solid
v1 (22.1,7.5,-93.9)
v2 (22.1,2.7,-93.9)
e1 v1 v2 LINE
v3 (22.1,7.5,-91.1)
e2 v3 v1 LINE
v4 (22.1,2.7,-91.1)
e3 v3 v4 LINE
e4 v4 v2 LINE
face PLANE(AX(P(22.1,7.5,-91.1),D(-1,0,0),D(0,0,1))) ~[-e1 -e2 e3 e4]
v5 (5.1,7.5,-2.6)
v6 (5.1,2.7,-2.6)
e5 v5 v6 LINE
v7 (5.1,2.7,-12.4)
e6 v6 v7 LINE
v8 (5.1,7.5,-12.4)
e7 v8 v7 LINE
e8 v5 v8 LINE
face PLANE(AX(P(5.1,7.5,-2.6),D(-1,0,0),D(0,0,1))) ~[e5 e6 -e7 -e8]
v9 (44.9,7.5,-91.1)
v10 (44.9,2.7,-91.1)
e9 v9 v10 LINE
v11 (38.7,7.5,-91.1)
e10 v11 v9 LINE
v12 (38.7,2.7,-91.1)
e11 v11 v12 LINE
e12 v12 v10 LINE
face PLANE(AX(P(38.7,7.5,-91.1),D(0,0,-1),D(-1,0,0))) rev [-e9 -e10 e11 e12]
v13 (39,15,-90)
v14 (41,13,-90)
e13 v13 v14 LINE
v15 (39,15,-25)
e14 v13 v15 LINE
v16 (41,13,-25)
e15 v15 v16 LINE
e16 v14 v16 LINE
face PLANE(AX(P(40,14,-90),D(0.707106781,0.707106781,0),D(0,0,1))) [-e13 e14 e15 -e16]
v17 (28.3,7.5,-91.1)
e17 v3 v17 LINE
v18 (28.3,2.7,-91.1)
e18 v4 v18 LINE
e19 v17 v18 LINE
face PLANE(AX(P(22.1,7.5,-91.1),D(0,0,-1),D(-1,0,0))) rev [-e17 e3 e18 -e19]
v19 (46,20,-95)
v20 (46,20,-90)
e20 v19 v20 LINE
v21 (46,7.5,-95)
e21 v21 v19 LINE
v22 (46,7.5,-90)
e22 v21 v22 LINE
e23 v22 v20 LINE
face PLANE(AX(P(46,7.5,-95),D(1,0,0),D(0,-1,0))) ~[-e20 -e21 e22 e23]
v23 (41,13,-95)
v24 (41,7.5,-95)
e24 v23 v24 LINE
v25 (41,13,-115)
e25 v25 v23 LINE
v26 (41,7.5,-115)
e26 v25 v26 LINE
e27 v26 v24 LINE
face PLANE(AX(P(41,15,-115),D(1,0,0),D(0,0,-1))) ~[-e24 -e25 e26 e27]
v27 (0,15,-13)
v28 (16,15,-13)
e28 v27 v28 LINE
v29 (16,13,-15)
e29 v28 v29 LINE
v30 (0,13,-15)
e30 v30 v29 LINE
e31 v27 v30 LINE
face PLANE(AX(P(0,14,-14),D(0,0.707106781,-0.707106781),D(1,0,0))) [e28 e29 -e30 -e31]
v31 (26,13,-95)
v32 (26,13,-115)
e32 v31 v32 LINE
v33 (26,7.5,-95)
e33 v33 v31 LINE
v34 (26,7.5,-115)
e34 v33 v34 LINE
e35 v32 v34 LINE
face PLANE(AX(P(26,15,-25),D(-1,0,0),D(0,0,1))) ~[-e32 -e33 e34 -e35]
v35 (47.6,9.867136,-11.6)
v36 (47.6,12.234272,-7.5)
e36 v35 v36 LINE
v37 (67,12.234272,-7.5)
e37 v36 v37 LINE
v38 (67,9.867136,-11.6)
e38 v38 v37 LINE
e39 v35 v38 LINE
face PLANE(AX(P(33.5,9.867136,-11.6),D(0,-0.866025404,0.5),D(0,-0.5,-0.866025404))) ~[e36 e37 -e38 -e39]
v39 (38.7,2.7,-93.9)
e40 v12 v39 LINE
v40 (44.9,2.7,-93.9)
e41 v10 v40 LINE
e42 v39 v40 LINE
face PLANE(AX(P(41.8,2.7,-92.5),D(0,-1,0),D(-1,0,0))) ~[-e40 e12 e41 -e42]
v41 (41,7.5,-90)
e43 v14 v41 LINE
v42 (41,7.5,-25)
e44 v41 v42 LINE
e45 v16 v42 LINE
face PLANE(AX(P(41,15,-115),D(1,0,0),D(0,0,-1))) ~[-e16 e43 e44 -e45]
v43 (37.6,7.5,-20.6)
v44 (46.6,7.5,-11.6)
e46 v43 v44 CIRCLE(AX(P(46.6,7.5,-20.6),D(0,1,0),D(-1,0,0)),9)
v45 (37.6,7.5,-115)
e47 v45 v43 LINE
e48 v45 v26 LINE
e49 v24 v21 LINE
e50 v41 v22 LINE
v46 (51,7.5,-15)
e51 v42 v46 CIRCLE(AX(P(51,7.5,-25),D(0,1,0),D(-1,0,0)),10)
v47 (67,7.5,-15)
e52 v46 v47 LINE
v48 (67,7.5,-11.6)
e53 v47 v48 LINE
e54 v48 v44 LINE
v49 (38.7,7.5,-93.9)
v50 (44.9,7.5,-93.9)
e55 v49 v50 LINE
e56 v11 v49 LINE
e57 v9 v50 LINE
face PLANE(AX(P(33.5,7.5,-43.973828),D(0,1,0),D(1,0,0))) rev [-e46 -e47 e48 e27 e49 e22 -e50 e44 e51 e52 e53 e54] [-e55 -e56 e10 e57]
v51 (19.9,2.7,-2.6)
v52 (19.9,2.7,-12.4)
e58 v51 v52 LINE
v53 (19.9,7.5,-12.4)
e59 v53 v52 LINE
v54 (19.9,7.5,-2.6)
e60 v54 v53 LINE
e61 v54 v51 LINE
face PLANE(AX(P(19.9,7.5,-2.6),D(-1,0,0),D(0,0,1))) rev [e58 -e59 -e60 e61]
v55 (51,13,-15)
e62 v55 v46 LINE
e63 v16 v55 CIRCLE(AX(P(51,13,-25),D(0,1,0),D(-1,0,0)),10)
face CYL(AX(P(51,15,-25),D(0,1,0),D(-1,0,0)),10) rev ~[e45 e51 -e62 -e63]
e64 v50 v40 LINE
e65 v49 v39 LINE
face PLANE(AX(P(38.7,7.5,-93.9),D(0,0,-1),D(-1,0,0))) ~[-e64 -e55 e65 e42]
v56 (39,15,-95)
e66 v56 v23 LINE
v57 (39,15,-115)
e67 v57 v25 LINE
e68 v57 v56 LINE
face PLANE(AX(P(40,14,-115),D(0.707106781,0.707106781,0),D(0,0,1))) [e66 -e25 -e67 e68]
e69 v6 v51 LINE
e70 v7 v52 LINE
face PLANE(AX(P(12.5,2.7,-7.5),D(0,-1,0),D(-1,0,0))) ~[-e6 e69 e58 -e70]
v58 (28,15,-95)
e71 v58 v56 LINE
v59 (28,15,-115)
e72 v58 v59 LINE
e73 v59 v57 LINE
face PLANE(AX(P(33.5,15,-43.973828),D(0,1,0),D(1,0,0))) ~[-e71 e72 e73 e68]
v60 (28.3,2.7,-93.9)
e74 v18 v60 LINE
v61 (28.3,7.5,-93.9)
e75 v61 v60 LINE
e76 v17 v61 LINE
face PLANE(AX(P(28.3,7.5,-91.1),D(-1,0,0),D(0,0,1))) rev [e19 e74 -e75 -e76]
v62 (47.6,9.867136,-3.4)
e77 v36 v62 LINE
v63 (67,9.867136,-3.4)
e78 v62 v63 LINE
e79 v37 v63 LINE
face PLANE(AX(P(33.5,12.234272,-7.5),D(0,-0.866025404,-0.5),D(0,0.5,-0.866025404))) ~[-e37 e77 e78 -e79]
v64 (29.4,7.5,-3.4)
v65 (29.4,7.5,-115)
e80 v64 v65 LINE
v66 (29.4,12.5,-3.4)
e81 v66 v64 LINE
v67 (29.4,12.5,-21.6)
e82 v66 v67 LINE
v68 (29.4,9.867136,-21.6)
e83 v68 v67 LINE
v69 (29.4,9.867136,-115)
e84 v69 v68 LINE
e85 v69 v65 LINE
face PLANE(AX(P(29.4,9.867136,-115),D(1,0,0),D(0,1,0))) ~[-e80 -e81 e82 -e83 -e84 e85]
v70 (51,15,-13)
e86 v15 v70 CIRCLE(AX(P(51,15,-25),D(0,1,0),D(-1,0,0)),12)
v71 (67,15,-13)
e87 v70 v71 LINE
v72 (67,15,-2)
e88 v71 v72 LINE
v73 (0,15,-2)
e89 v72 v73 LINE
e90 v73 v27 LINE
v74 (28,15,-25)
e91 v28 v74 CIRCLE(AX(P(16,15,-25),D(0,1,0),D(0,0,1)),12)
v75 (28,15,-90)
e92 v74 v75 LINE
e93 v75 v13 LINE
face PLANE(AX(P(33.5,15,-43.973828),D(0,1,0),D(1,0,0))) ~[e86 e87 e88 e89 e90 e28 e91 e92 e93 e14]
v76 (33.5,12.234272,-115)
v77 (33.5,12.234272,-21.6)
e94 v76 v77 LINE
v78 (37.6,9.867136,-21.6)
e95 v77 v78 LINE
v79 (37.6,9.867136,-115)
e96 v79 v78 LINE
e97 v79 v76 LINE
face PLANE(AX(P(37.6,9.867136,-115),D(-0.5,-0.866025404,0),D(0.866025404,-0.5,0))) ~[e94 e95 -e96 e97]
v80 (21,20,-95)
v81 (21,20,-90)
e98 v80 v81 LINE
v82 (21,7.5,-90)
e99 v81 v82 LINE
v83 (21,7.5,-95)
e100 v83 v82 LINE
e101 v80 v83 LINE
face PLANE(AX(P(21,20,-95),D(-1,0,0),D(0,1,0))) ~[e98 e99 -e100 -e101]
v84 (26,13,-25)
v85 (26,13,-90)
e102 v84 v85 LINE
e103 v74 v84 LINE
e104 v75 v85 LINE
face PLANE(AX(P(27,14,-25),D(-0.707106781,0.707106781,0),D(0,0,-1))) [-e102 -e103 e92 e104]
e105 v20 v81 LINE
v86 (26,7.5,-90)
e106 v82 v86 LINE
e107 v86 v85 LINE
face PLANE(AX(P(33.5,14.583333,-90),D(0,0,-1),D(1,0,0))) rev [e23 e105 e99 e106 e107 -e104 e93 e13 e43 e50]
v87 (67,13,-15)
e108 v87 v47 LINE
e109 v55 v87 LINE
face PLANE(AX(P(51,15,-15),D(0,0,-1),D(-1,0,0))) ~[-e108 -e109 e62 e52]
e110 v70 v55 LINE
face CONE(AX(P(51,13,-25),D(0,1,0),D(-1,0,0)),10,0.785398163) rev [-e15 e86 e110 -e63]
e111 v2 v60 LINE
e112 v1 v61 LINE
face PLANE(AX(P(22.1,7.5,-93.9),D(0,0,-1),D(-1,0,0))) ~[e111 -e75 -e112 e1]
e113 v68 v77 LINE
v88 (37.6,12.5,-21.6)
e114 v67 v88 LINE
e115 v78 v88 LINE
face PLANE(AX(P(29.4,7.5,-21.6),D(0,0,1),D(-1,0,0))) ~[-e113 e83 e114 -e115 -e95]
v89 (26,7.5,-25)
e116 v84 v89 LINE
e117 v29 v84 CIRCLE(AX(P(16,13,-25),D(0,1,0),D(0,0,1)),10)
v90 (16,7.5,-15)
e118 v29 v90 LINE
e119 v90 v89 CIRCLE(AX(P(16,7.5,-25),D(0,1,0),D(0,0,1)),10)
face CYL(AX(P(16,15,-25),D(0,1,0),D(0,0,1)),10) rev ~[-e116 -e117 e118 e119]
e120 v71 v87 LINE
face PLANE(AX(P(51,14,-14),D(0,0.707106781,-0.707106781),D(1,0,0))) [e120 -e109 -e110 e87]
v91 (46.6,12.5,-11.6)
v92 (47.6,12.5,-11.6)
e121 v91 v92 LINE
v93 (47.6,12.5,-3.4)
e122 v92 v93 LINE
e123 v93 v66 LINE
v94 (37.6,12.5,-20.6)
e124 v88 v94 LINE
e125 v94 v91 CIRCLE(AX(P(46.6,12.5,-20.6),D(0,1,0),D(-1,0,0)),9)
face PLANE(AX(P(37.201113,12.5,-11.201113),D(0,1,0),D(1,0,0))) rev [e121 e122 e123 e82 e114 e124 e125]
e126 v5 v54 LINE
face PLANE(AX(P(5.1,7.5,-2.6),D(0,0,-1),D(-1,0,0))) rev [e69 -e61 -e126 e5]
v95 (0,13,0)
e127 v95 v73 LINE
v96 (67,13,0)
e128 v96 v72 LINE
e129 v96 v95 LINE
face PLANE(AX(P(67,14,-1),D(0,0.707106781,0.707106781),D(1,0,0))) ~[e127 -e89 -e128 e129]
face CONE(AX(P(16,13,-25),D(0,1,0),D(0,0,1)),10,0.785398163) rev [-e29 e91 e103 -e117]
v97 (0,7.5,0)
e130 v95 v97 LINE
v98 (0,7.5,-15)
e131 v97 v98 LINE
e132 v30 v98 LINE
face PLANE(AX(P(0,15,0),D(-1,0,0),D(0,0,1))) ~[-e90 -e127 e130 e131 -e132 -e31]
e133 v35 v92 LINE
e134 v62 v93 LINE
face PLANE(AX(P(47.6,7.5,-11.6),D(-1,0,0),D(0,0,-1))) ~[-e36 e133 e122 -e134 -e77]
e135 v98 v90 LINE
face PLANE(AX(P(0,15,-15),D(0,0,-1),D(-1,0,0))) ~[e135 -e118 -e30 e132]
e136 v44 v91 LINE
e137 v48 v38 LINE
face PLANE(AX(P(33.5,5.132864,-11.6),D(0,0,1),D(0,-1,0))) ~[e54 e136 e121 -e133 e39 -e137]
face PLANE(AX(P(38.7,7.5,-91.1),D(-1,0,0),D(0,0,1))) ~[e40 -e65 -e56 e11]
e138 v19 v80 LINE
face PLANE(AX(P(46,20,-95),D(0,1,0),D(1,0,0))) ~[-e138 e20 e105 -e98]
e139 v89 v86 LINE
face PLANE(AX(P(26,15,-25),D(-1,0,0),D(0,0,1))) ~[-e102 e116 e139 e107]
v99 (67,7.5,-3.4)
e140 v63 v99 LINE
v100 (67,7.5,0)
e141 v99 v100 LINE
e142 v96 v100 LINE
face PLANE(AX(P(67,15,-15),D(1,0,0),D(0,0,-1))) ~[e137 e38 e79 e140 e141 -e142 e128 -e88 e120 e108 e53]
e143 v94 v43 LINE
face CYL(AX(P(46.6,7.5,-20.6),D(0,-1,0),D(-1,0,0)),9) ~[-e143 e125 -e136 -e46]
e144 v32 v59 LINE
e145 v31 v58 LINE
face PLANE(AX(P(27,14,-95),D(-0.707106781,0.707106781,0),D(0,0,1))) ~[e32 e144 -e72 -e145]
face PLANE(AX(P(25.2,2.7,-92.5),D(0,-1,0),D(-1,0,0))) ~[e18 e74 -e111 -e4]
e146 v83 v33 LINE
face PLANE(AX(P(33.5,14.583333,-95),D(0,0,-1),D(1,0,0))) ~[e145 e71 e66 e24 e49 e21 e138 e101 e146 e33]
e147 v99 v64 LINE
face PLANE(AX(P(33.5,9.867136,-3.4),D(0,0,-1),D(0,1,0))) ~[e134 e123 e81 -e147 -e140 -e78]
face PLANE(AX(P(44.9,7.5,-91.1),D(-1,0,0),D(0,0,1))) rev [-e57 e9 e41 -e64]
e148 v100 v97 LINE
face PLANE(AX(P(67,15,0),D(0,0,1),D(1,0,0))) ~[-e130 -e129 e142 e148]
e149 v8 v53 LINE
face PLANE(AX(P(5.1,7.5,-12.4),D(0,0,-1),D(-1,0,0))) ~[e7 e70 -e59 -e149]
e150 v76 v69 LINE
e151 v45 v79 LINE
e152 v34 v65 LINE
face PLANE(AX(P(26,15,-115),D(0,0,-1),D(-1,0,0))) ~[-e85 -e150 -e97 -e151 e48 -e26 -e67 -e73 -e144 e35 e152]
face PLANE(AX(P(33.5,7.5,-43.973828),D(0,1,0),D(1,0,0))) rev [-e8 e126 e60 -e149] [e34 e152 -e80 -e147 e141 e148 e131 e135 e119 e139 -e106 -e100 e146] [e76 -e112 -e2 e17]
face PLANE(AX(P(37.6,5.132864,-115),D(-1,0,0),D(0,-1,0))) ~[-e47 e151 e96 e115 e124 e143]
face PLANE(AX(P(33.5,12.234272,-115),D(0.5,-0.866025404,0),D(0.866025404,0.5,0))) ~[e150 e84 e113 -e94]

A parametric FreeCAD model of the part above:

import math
import FreeCAD as App
import Part
import Sketcher
from FreeCAD import Vector
Q = App.Units.Quantity


def edges_at(feature, points):
    """Names of the edges that pass closest to the given points."""
    edges = feature.Shape.Edges
    near = lambda p: min(range(len(edges)), key=lambda i: edges[i].distToShape(Part.Vertex(*p))[0])
    return sorted({f"Edge{near(p) + 1}" for p in points})

doc = App.newDocument("Part")
body = doc.addObject("PartDesign::Body", "Body")

# Sketch on XZ plane
sketch1 = body.newObject("Sketcher::SketchObject", "Sketch")
sketch1.AttachmentSupport = (doc.getObject("XZ_Plane"), [""])
sketch1.MapMode = "FlatFace"
sketch1.addGeometry([
    Part.LineSegment(Vector(0, -15, 0), Vector(0, 0, 0)),  # 0
    Part.LineSegment(Vector(0, 0, 0), Vector(67, 0, 0)),  # 1
    Part.LineSegment(Vector(67, 0, 0), Vector(67, -15, 0)),  # 2
    Part.LineSegment(Vector(67, -15, 0), Vector(51, -15, 0)),  # 3
    Part.ArcOfCircle(Part.Circle(Vector(51, -25, 0), Vector(0, 0, 1), 10), math.radians(90), math.radians(180)),  # 4
    Part.LineSegment(Vector(41, -25, 0), Vector(41, -115, 0)),  # 5
    Part.LineSegment(Vector(41, -115, 0), Vector(26, -115, 0)),  # 6
    Part.LineSegment(Vector(26, -115, 0), Vector(26, -25, 0)),  # 7
    Part.ArcOfCircle(Part.Circle(Vector(16, -25, 0), Vector(0, 0, 1), 10), math.radians(0), math.radians(90)),  # 8
    Part.LineSegment(Vector(16, -15, 0), Vector(0, -15, 0)),  # 9
], False)
sketch1.addConstraint([
    Sketcher.Constraint("Coincident", 0, 2, 1, 1),
    Sketcher.Constraint("Coincident", 1, 2, 2, 1),
    Sketcher.Constraint("Coincident", 2, 2, 3, 1),
    Sketcher.Constraint("Tangent", 3, 2, 4, 1),
    Sketcher.Constraint("Tangent", 4, 2, 5, 1),
    Sketcher.Constraint("Coincident", 5, 2, 6, 1),
    Sketcher.Constraint("Coincident", 6, 2, 7, 1),
    Sketcher.Constraint("Tangent", 7, 2, 8, 1),
    Sketcher.Constraint("Tangent", 8, 2, 9, 1),
    Sketcher.Constraint("Coincident", 9, 2, 0, 1),
    Sketcher.Constraint("Vertical", 0),
    Sketcher.Constraint("Horizontal", 1),
    Sketcher.Constraint("Vertical", 2),
    Sketcher.Constraint("Horizontal", 3),
    Sketcher.Constraint("Vertical", 5),
    Sketcher.Constraint("Horizontal", 6),
    Sketcher.Constraint("Vertical", 7),
    Sketcher.Constraint("Horizontal", 9),
    Sketcher.Constraint("Coincident", 0, 2, -1, 1),
    Sketcher.Constraint("Equal", 4, 8),
    Sketcher.Constraint("Horizontal", 4, 3, 8, 3),
    Sketcher.Constraint("Equal", 3, 9),
    Sketcher.Constraint("Equal", 6, 0),
    Sketcher.Constraint("Radius", 4, 10.0),
    Sketcher.Constraint("DistanceX", 1, 1, 1, 2, 67.0),
    Sketcher.Constraint("DistanceX", 3, 2, 3, 1, 16.0),
    Sketcher.Constraint("DistanceY", 5, 2, 5, 1, 90.0),
])
pad1 = body.newObject("PartDesign::Pad", "Pad")
pad1.Profile = sketch1
pad1.Length = 7.5
pad1.Reversed = True

# Sketch on XY plane
sketch2 = body.newObject("Sketcher::SketchObject", "Sketch001")
sketch2.AttachmentSupport = (doc.getObject("XY_Plane"), [""])
sketch2.MapMode = "FlatFace"
sketch2.AttachmentOffset = App.Placement(Vector(0, 0, -115), App.Rotation())
sketch2.addGeometry([
    Part.LineSegment(Vector(37.6, 5.1, 0), Vector(33.5, 2.8, 0)),  # 0
    Part.LineSegment(Vector(33.5, 2.8, 0), Vector(29.4, 5.1, 0)),  # 1
    Part.LineSegment(Vector(29.4, 5.1, 0), Vector(29.4, 9.9, 0)),  # 2
    Part.LineSegment(Vector(29.4, 9.9, 0), Vector(33.5, 12.2, 0)),  # 3
    Part.LineSegment(Vector(33.5, 12.2, 0), Vector(37.6, 9.9, 0)),  # 4
    Part.LineSegment(Vector(37.6, 9.9, 0), Vector(37.6, 5.1, 0)),  # 5
], False)
sketch2.addConstraint([
    Sketcher.Constraint("Coincident", 0, 2, 1, 1),
    Sketcher.Constraint("Coincident", 1, 2, 2, 1),
    Sketcher.Constraint("Coincident", 2, 2, 3, 1),
    Sketcher.Constraint("Coincident", 3, 2, 4, 1),
    Sketcher.Constraint("Coincident", 4, 2, 5, 1),
    Sketcher.Constraint("Coincident", 5, 2, 0, 1),
    Sketcher.Constraint("Vertical", 2),
    Sketcher.Constraint("Vertical", 5),
    Sketcher.Constraint("Parallel", 0, 3),
    Sketcher.Constraint("Parallel", 1, 4),
    Sketcher.Constraint("Horizontal", 2, 2, 4, 2),
    Sketcher.Constraint("Horizontal", 1, 2, 5, 2),
    Sketcher.Constraint("Vertical", 0, 2, 3, 2),
    Sketcher.Constraint("Angle", 0, Q("-150 deg")),
    Sketcher.Constraint("DistanceX", -1, 1, 0, 2, 33.5),
    Sketcher.Constraint("DistanceX", -1, 1, 1, 2, 29.4),
    Sketcher.Constraint("DistanceY", 2, 1, 2, 2, 4.734272),
    Sketcher.Constraint("DistanceY", -1, 1, 0, 2, 2.765728),
])

# Sketch on XZ plane
sketch3 = body.newObject("Sketcher::SketchObject", "Sketch002")
sketch3.AttachmentSupport = (doc.getObject("XZ_Plane"), [""])
sketch3.MapMode = "FlatFace"
sketch3.AttachmentOffset = App.Placement(Vector(0, 0, -7.5), App.Rotation())
sketch3.addGeometry([
    Part.LineSegment(Vector(34, -115, 0), Vector(34, -8, 0)),
    Part.LineSegment(Vector(34, -8, 0), Vector(67, -8, 0)),
], False)
sketch3.addConstraint([
    Sketcher.Constraint("Coincident", 0, 2, 1, 1),
    Sketcher.Constraint("Vertical", 0),
    Sketcher.Constraint("Horizontal", 1),
    Sketcher.Constraint("DistanceX", 1, 1, 1, 2, 33.5),
    Sketcher.Constraint("DistanceY", 0, 1, 0, 2, 107.5),
    Sketcher.Constraint("DistanceY", 0, 1, -1, 1, 115.0),
    Sketcher.Constraint("DistanceX", -1, 1, 1, 2, 67.0),
])
doc.recompute()

subtractivepipe = body.newObject("PartDesign::SubtractivePipe", "SubtractivePipe")
subtractivepipe.Profile = sketch2
subtractivepipe.Spine = (sketch3, ["Edge1", "Edge2"])
subtractivepipe.Transition = "Right corner"

# Sketch on XZ plane
sketch4 = body.newObject("Sketcher::SketchObject", "Sketch003")
sketch4.AttachmentSupport = (doc.getObject("XZ_Plane"), [""])
sketch4.MapMode = "FlatFace"
sketch4.AttachmentOffset = App.Placement(Vector(0, 0, -7.5), App.Rotation())
sketch4.addGeometry([
    Part.LineSegment(Vector(47.6, -3.4, 0), Vector(47.6, -11.6, 0)),  # 0
    Part.LineSegment(Vector(47.6, -11.6, 0), Vector(46.6, -11.6, 0)),  # 1
    Part.ArcOfCircle(Part.Circle(Vector(46.6, -20.6, 0), Vector(0, 0, 1), 9), math.radians(90), math.radians(180)),  # 2
    Part.LineSegment(Vector(37.6, -20.6, 0), Vector(37.6, -21.6, 0)),  # 3
    Part.LineSegment(Vector(37.6, -21.6, 0), Vector(29.4, -21.6, 0)),  # 4
    Part.LineSegment(Vector(29.4, -21.6, 0), Vector(29.4, -3.4, 0)),  # 5
    Part.LineSegment(Vector(29.4, -3.4, 0), Vector(47.6, -3.4, 0)),  # 6
], False)
sketch4.addConstraint([
    Sketcher.Constraint("Coincident", 0, 2, 1, 1),
    Sketcher.Constraint("Tangent", 1, 2, 2, 1),
    Sketcher.Constraint("Tangent", 2, 2, 3, 1),
    Sketcher.Constraint("Coincident", 3, 2, 4, 1),
    Sketcher.Constraint("Coincident", 4, 2, 5, 1),
    Sketcher.Constraint("Coincident", 5, 2, 6, 1),
    Sketcher.Constraint("Coincident", 6, 2, 0, 1),
    Sketcher.Constraint("Vertical", 0),
    Sketcher.Constraint("Horizontal", 1),
    Sketcher.Constraint("Vertical", 3),
    Sketcher.Constraint("Horizontal", 4),
    Sketcher.Constraint("Vertical", 5),
    Sketcher.Constraint("Horizontal", 6),
    Sketcher.Constraint("Equal", 4, 0),
    Sketcher.Constraint("Equal", 1, 3),
    Sketcher.Constraint("Radius", 2, 9.0),
    Sketcher.Constraint("DistanceX", 1, 2, 1, 1, 1.0),
    Sketcher.Constraint("DistanceX", 4, 2, 4, 1, 8.2),
    Sketcher.Constraint("DistanceX", -1, 1, 2, 3, 46.6),
    Sketcher.Constraint("DistanceY", 2, 3, -1, 1, 20.6),
])
pocket1 = body.newObject("PartDesign::Pocket", "Pocket")
pocket1.Profile = sketch4
pocket1.Length = 5
pocket1.Reversed = True

# Sketch on XY plane
sketch5 = body.newObject("Sketcher::SketchObject", "Sketch004")
sketch5.AttachmentSupport = (doc.getObject("XY_Plane"), [""])
sketch5.MapMode = "FlatFace"
sketch5.AttachmentOffset = App.Placement(Vector(0, 0, -95), App.Rotation())
sketch5.addGeometry([
    Part.LineSegment(Vector(41, 8, 0), Vector(46, 8, 0)),  # 0
    Part.LineSegment(Vector(46, 8, 0), Vector(46, -5, 0)),  # 1
    Part.LineSegment(Vector(46, -5, 0), Vector(21, -5, 0)),  # 2
    Part.LineSegment(Vector(21, -5, 0), Vector(21, 8, 0)),  # 3
    Part.LineSegment(Vector(21, 8, 0), Vector(26, 8, 0)),  # 4
    Part.LineSegment(Vector(26, 8, 0), Vector(26, 0, 0)),  # 5
    Part.LineSegment(Vector(26, 0, 0), Vector(41, 0, 0)),  # 6
    Part.LineSegment(Vector(41, 0, 0), Vector(41, 8, 0)),  # 7
], False)
sketch5.addConstraint([
    Sketcher.Constraint("Coincident", 0, 2, 1, 1),
    Sketcher.Constraint("Coincident", 1, 2, 2, 1),
    Sketcher.Constraint("Coincident", 2, 2, 3, 1),
    Sketcher.Constraint("Coincident", 3, 2, 4, 1),
    Sketcher.Constraint("Coincident", 4, 2, 5, 1),
    Sketcher.Constraint("Coincident", 5, 2, 6, 1),
    Sketcher.Constraint("Coincident", 6, 2, 7, 1),
    Sketcher.Constraint("Coincident", 7, 2, 0, 1),
    Sketcher.Constraint("Horizontal", 0),
    Sketcher.Constraint("Vertical", 1),
    Sketcher.Constraint("Horizontal", 2),
    Sketcher.Constraint("Vertical", 3),
    Sketcher.Constraint("Horizontal", 4),
    Sketcher.Constraint("Vertical", 5),
    Sketcher.Constraint("Horizontal", 6),
    Sketcher.Constraint("Vertical", 7),
    Sketcher.Constraint("PointOnObject", 5, 2, -1),
    Sketcher.Constraint("Horizontal", 0, 2, 3, 2),
    Sketcher.Constraint("Equal", 0, 4),
    Sketcher.Constraint("DistanceX", 0, 1, 0, 2, 5.0),
    Sketcher.Constraint("DistanceX", 2, 2, 2, 1, 25.0),
    Sketcher.Constraint("DistanceY", 1, 2, 1, 1, 12.5),
    Sketcher.Constraint("DistanceY", 5, 2, 5, 1, 7.5),
    Sketcher.Constraint("DistanceX", -1, 1, 0, 2, 46.0),
])
pad2 = body.newObject("PartDesign::Pad", "Pad001")
pad2.Profile = sketch5
pad2.Length = 5
doc.recompute()

chamfer = body.newObject("PartDesign::Chamfer", "Chamfer")
chamfer.Base = (pad2, edges_at(pad2, [
    (26, 0, -57.5),
    (41, 0, -105),
    (33.5, 0, 0),
    (8, 0, -15),
    (23.071, 0, -17.929),
    (26, 0, -105),
    (41, 0, -57.5),
    (43.929, 0, -17.929),
    (59, 0, -15),
]))
chamfer.Size = 2

# Sketch on XZ plane
sketch6 = body.newObject("Sketcher::SketchObject", "Sketch005")
sketch6.AttachmentSupport = (doc.getObject("XZ_Plane"), [""])
sketch6.MapMode = "FlatFace"
sketch6.AttachmentOffset = App.Placement(Vector(0, 0, -7.5), App.Rotation())
sketch6.addGeometry([
    Part.LineSegment(Vector(5.1, -12.4, 0), Vector(5.1, -2.6, 0)),  # 0
    Part.LineSegment(Vector(5.1, -2.6, 0), Vector(19.9, -2.6, 0)),  # 1
    Part.LineSegment(Vector(19.9, -2.6, 0), Vector(19.9, -12.4, 0)),  # 2
    Part.LineSegment(Vector(19.9, -12.4, 0), Vector(5.1, -12.4, 0)),  # 3
    Part.LineSegment(Vector(22.1, -93.9, 0), Vector(22.1, -91.1, 0)),  # 4
    Part.LineSegment(Vector(22.1, -91.1, 0), Vector(28.3, -91.1, 0)),  # 5
    Part.LineSegment(Vector(28.3, -91.1, 0), Vector(28.3, -93.9, 0)),  # 6
    Part.LineSegment(Vector(28.3, -93.9, 0), Vector(22.1, -93.9, 0)),  # 7
    Part.LineSegment(Vector(38.7, -93.9, 0), Vector(38.7, -91.1, 0)),  # 8
    Part.LineSegment(Vector(38.7, -91.1, 0), Vector(44.9, -91.1, 0)),  # 9
    Part.LineSegment(Vector(44.9, -91.1, 0), Vector(44.9, -93.9, 0)),  # 10
    Part.LineSegment(Vector(44.9, -93.9, 0), Vector(38.7, -93.9, 0)),  # 11
], False)
sketch6.addConstraint([
    Sketcher.Constraint("Coincident", 0, 2, 1, 1),
    Sketcher.Constraint("Coincident", 1, 2, 2, 1),
    Sketcher.Constraint("Coincident", 2, 2, 3, 1),
    Sketcher.Constraint("Coincident", 3, 2, 0, 1),
    Sketcher.Constraint("Coincident", 4, 2, 5, 1),
    Sketcher.Constraint("Coincident", 5, 2, 6, 1),
    Sketcher.Constraint("Coincident", 6, 2, 7, 1),
    Sketcher.Constraint("Coincident", 7, 2, 4, 1),
    Sketcher.Constraint("Coincident", 8, 2, 9, 1),
    Sketcher.Constraint("Coincident", 9, 2, 10, 1),
    Sketcher.Constraint("Coincident", 10, 2, 11, 1),
    Sketcher.Constraint("Coincident", 11, 2, 8, 1),
    Sketcher.Constraint("Vertical", 0),
    Sketcher.Constraint("Horizontal", 1),
    Sketcher.Constraint("Vertical", 2),
    Sketcher.Constraint("Horizontal", 3),
    Sketcher.Constraint("Vertical", 4),
    Sketcher.Constraint("Horizontal", 5),
    Sketcher.Constraint("Vertical", 6),
    Sketcher.Constraint("Horizontal", 7),
    Sketcher.Constraint("Vertical", 8),
    Sketcher.Constraint("Horizontal", 9),
    Sketcher.Constraint("Vertical", 10),
    Sketcher.Constraint("Horizontal", 11),
    Sketcher.Constraint("Horizontal", 5, 2, 8, 2),
    Sketcher.Constraint("Horizontal", 7, 2, 10, 2),
    Sketcher.Constraint("Equal", 7, 9),
    Sketcher.Constraint("DistanceX", 1, 1, 1, 2, 14.8),
    Sketcher.Constraint("DistanceX", 5, 1, 5, 2, 6.2),
    Sketcher.Constraint("DistanceY", 0, 1, 0, 2, 9.8),
    Sketcher.Constraint("DistanceY", 4, 1, 4, 2, 2.8),
    Sketcher.Constraint("DistanceX", 3, 2, 4, 2, 17.0),
    Sketcher.Constraint("DistanceX", -1, 1, 0, 2, 5.1),
    Sketcher.Constraint("DistanceY", 0, 2, -1, 1, 2.6),
    Sketcher.Constraint("DistanceY", 4, 2, -1, 1, 91.1),
    Sketcher.Constraint("DistanceX", -1, 1, 8, 2, 38.7),
])
pad3 = body.newObject("PartDesign::Pad", "Pad002")
pad3.Profile = sketch6
pad3.Length = 4.8
pad3.Reversed = True
body2 = doc.addObject("PartDesign::Body", "Body001")
doc.recompute()

mirroring = doc.addObject("Part::Mirroring", "Mirroring")
mirroring.Source = body
mirroring.Base = Vector(0, 7.5, 0)
mirroring.Normal = Vector(0, 1, 0)
body2.BaseFeature = mirroring
doc.recompute()
body.Visibility = False
mirroring.Visibility = False

doc.recompute()
